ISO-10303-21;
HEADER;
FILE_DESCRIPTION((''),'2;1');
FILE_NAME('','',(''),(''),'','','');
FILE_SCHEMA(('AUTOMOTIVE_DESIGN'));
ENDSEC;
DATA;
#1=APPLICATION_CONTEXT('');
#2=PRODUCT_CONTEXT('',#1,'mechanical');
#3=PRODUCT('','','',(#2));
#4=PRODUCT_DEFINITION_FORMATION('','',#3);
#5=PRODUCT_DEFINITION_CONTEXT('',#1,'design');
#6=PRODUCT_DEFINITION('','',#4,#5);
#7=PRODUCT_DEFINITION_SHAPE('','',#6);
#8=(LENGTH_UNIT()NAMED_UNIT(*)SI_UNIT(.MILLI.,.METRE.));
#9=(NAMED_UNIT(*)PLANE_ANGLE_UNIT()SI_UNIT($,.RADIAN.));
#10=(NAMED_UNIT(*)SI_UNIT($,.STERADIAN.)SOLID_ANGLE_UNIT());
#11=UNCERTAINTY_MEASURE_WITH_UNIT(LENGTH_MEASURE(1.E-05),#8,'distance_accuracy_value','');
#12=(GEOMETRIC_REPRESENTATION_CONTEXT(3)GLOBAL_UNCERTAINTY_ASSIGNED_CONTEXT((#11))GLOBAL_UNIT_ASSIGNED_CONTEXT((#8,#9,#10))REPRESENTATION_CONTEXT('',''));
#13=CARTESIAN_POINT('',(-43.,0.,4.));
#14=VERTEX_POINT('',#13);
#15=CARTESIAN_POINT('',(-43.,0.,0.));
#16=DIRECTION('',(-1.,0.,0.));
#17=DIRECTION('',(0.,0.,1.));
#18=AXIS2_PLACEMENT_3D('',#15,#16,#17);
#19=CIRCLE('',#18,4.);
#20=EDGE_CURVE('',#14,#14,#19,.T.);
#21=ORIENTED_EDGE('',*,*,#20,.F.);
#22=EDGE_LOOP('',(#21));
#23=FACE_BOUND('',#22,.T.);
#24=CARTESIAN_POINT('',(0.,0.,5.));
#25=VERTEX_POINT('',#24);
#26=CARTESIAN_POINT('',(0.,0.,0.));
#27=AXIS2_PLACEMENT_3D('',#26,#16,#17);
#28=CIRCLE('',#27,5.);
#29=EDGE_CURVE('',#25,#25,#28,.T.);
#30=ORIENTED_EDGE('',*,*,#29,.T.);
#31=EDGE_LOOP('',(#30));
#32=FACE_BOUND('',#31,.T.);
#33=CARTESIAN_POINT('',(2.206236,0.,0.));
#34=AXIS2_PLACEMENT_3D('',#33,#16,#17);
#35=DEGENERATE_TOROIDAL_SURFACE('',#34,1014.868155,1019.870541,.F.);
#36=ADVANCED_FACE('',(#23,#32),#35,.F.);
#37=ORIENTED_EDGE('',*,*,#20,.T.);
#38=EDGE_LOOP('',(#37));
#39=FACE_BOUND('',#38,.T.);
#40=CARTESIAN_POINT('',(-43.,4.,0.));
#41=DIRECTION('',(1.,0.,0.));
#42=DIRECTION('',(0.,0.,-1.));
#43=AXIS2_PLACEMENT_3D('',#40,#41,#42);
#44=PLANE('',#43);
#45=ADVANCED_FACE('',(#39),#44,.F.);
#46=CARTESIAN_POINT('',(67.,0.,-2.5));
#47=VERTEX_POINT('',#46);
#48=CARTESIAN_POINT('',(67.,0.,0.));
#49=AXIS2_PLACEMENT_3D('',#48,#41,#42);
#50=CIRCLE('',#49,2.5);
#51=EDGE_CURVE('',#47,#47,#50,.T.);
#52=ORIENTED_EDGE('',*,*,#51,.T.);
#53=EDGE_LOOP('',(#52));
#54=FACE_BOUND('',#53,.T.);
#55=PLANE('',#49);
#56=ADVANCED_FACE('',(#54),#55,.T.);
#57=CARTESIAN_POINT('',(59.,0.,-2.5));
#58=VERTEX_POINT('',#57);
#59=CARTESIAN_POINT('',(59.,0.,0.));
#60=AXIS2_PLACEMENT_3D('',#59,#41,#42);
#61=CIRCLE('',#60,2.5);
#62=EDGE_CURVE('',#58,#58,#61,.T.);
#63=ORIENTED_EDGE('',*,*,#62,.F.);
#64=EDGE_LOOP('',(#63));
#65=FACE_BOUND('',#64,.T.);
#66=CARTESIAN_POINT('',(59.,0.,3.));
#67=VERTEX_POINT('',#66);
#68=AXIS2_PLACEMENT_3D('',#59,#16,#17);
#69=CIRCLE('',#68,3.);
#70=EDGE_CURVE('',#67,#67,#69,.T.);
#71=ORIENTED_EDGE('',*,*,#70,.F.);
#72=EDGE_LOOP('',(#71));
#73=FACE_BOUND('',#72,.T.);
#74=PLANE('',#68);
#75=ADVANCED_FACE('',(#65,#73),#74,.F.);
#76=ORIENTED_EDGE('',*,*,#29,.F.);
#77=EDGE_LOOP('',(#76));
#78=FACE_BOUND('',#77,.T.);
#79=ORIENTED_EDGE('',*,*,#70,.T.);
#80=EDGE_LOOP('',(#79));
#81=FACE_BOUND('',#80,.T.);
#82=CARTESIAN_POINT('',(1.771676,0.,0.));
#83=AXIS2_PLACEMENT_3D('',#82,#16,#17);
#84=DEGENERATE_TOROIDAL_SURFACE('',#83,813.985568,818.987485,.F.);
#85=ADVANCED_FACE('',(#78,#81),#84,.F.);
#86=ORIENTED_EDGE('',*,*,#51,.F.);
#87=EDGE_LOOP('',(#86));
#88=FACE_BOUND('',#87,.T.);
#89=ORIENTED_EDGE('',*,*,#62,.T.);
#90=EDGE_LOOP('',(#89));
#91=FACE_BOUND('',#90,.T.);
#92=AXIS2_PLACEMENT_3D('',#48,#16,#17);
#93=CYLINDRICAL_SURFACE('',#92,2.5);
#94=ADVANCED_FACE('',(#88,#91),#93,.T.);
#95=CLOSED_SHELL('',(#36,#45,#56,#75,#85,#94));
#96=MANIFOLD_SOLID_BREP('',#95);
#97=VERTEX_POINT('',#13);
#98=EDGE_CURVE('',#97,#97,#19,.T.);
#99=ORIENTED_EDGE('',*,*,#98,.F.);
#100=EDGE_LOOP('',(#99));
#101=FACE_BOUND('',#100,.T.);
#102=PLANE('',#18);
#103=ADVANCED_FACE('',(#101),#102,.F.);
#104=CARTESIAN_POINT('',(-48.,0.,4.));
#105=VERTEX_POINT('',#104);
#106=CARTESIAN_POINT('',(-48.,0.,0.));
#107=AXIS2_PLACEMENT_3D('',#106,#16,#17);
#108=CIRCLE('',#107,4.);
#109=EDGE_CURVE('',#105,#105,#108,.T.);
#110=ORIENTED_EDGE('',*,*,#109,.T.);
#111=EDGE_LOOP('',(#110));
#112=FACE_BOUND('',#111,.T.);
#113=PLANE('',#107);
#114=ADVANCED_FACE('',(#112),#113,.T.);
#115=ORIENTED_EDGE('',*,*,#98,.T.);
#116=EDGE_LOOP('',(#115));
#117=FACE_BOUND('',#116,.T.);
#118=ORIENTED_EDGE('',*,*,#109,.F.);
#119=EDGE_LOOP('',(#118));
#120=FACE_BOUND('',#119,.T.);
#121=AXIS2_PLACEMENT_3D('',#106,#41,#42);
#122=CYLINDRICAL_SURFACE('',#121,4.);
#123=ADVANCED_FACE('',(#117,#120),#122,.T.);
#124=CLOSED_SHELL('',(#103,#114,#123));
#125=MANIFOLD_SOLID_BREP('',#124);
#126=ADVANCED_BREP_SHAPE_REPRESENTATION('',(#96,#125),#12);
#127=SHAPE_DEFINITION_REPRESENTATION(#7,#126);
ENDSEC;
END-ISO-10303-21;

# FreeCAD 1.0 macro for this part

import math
import FreeCAD as App
import Part
import Sketcher
from FreeCAD import Vector

doc = App.newDocument("Part")
body = doc.addObject("PartDesign::Body", "Body")

# Sketch on XY plane
sketch1 = body.newObject("Sketcher::SketchObject", "Sketch")
sketch1.AttachmentSupport = (doc.getObject("XY_Plane"), [""])
sketch1.MapMode = "FlatFace"
sketch1.addGeometry([
    Part.LineSegment(Vector(-43, 4, 0), Vector(-43, 0, 0)),  # 0
    Part.LineSegment(Vector(-43, 0, 0), Vector(59, 0, 0)),  # 1
    Part.LineSegment(Vector(59, 0, 0), Vector(59, 3, 0)),  # 2
    Part.ArcOfCircle(Part.Circle(Vector(1.8, -814, 0), Vector(0, 0, 1), 819), math.radians(85.99), math.radians(90.12)),  # 3
    Part.ArcOfCircle(Part.Circle(Vector(2.2, -1014.9, 0), Vector(0, 0, 1), 1019.9), math.radians(90.12), math.radians(92.54)),  # 4
], False)
sketch1.addConstraint([
    Sketcher.Constraint("Coincident", 0, 2, 1, 1),
    Sketcher.Constraint("Coincident", 1, 2, 2, 1),
    Sketcher.Constraint("Coincident", 2, 2, 3, 1),
    Sketcher.Constraint("Tangent", 3, 2, 4, 1),
    Sketcher.Constraint("Coincident", 4, 2, 0, 1),
    Sketcher.Constraint("Vertical", 0),
    Sketcher.Constraint("Horizontal", 1),
    Sketcher.Constraint("Vertical", 2),
    Sketcher.Constraint("PointOnObject", 0, 2, -1),
    Sketcher.Constraint("PointOnObject", 3, 2, -2),
    Sketcher.Constraint("DistanceX", 1, 1, 1, 2, 102.0),
    Sketcher.Constraint("DistanceY", 0, 2, 0, 1, 4.0),
    Sketcher.Constraint("DistanceY", 2, 1, 2, 2, 3.0),
    Sketcher.Constraint("DistanceX", 0, 2, -1, 1, 43.0),
    Sketcher.Constraint("Radius", 4, 1019.87054),
    Sketcher.Constraint("Radius", 3, 818.987485),
])
revolution = body.newObject("PartDesign::Revolution", "Revolution")
revolution.Profile = sketch1
revolution.ReferenceAxis = (sketch1, ["H_Axis"])
revolution.Angle = 360

# Sketch on YZ plane
sketch2 = body.newObject("Sketcher::SketchObject", "Sketch001")
sketch2.AttachmentSupport = (doc.getObject("YZ_Plane"), [""])
sketch2.MapMode = "FlatFace"
sketch2.AttachmentOffset = App.Placement(Vector(0, 0, 59), App.Rotation())
sketch2.addGeometry(Part.Circle(Vector(0, 0, 0), Vector(0, 0, 1), 2.5), False)
sketch2.addConstraint([
    Sketcher.Constraint("Coincident", 0, 3, -1, 1),
    Sketcher.Constraint("Diameter", 0, 5.0),
])
pad1 = body.newObject("PartDesign::Pad", "Pad")
pad1.Profile = sketch2
pad1.Length = 8
body2 = doc.addObject("PartDesign::Body", "Body001")

# Sketch on YZ plane
sketch3 = body2.newObject("Sketcher::SketchObject", "Sketch002")
sketch3.AttachmentSupport = (doc.getObject("YZ_Plane001"), [""])
sketch3.MapMode = "FlatFace"
sketch3.AttachmentOffset = App.Placement(Vector(0, 0, -43), App.Rotation())
sketch3.addGeometry(Part.Circle(Vector(0, 0, 0), Vector(0, 0, 1), 4), False)
sketch3.addConstraint([
    Sketcher.Constraint("Coincident", 0, 3, -1, 1),
    Sketcher.Constraint("Diameter", 0, 8.0),
])
pad2 = body2.newObject("PartDesign::Pad", "Pad001")
pad2.Profile = sketch3
pad2.Length = 5
pad2.Reversed = True

doc.recompute()
